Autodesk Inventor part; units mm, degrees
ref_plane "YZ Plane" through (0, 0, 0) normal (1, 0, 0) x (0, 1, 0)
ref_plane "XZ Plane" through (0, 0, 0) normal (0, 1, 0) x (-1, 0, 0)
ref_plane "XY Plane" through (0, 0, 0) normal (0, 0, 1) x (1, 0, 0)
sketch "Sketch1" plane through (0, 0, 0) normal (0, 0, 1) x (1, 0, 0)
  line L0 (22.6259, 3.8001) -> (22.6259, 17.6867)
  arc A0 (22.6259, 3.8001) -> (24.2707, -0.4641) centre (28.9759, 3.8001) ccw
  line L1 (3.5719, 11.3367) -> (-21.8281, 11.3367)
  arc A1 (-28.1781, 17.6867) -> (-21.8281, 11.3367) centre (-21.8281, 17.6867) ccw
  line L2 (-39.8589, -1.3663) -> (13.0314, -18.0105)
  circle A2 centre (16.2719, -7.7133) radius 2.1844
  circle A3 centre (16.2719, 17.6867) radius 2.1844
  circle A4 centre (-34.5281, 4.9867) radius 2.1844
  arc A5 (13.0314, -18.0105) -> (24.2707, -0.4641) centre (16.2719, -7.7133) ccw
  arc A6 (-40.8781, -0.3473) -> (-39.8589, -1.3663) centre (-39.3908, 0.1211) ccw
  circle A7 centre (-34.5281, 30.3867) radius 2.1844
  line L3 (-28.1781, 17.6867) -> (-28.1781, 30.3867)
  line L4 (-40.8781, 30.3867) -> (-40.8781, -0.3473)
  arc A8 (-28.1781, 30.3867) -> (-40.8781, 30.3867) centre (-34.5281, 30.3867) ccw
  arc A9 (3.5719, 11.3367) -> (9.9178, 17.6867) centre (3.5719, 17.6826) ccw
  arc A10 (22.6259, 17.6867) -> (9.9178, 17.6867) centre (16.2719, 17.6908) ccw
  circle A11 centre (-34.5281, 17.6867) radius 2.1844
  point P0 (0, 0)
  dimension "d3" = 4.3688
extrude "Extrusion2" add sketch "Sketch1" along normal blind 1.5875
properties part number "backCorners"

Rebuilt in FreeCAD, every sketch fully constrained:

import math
import FreeCAD as App
import Part
import Sketcher

V = App.Vector
Q = App.Units.Quantity

doc = App.newDocument("Part")
body = doc.addObject("PartDesign::Body", "Body")

# Sketch on XY plane
sketch1 = body.newObject("Sketcher::SketchObject", "Sketch")
sketch1.AttachmentSupport = (doc.getObject("XY_Plane"), [""])
sketch1.MapMode = "FlatFace"
sketch1.addGeometry([
    Part.ArcOfCircle(Part.Circle(V(28.9759, 3.8001, 0), V(0, 0, 1), 6.35), math.radians(180), math.radians(222.185195)),  # 0
    Part.LineSegment(V(22.6259, 3.8001, 0), V(22.6259, 17.6867, 0)),  # 1
    Part.ArcOfCircle(Part.Circle(V(16.2719, 17.6908, 0), V(0, 0, 1), 6.354001), math.radians(-0.036971), math.radians(180.03697)),  # 2
    Part.ArcOfCircle(Part.Circle(V(3.5719, 17.6826, 0), V(0, 0, 1), 6.3459), math.radians(-90), math.radians(0.037018)),  # 3
    Part.LineSegment(V(3.5719, 11.3367, 0), V(-21.8281, 11.3367, 0)),  # 4
    Part.ArcOfCircle(Part.Circle(V(-21.8281, 17.6867, 0), V(0, 0, 1), 6.35), math.radians(180), math.radians(270)),  # 5
    Part.LineSegment(V(-28.1781, 17.6867, 0), V(-28.1781, 30.3867, 0)),  # 6
    Part.ArcOfCircle(Part.Circle(V(-34.5281, 30.3867, 0), V(0, 0, 1), 6.35), math.radians(0), math.radians(180)),  # 7
    Part.LineSegment(V(-40.8781, 30.3867, 0), V(-40.8781, -0.3473, 0)),  # 8
    Part.ArcOfCircle(Part.Circle(V(-39.3908, 0.1211, 0), V(0, 0, 1), 1.559314), math.radians(-162.51906), math.radians(-107.469322)),  # 9
    Part.LineSegment(V(-39.8589, -1.3663, 0), V(13.0314, -18.0105, 0)),  # 10
    Part.ArcOfCircle(Part.Circle(V(16.2719, -7.7133, 0), V(0, 0, 1), 10.795053), math.radians(-107.468643), math.radians(42.185574)),  # 11
    Part.Circle(V(-34.5281, 4.9867, 0), V(0, 0, 1), 2.1844),  # 12
    Part.Circle(V(16.2719, -7.7133, 0), V(0, 0, 1), 2.1844),  # 13
    Part.Circle(V(-34.5281, 17.6867, 0), V(0, 0, 1), 2.1844),  # 14
    Part.Circle(V(-34.5281, 30.3867, 0), V(0, 0, 1), 2.1844),  # 15
    Part.Circle(V(16.2719, 17.6867, 0), V(0, 0, 1), 2.1844),  # 16
], False)
sketch1.addConstraint([
    Sketcher.Constraint("Tangent", 0, 1, 1, 1),
    Sketcher.Constraint("Coincident", 1, 2, 2, 1),
    Sketcher.Constraint("Tangent", 2, 2, 3, 2),
    Sketcher.Constraint("Tangent", 3, 1, 4, 1),
    Sketcher.Constraint("Tangent", 4, 2, 5, 2),
    Sketcher.Constraint("Tangent", 5, 1, 6, 1),
    Sketcher.Constraint("Tangent", 6, 2, 7, 1),
    Sketcher.Constraint("Tangent", 7, 2, 8, 1),
    Sketcher.Constraint("Coincident", 8, 2, 9, 1),
    Sketcher.Constraint("Tangent", 9, 2, 10, 1),
    Sketcher.Constraint("Tangent", 10, 2, 11, 1),
    Sketcher.Constraint("Tangent", 11, 2, 0, 2),
    Sketcher.Constraint("Vertical", 1),
    Sketcher.Constraint("Horizontal", 4),
    Sketcher.Constraint("Vertical", 6),
    Sketcher.Constraint("Vertical", 8),
    Sketcher.Constraint("Coincident", 13, 3, 11, 3),
    Sketcher.Constraint("Coincident", 15, 3, 7, 3),
    Sketcher.Constraint("Equal", 0, 5),
    Sketcher.Constraint("Equal", 5, 7),
    Sketcher.Constraint("Equal", 12, 13),
    Sketcher.Constraint("Equal", 13, 14),
    Sketcher.Constraint("Equal", 14, 15),
    Sketcher.Constraint("Equal", 15, 16),
    Sketcher.Constraint("Horizontal", 5, 3, 14, 3),
    Sketcher.Constraint("Horizontal", 14, 3, 16, 3),
    Sketcher.Constraint("Horizontal", 16, 3, 1, 2),
    Sketcher.Constraint("Horizontal", 1, 2, 2, 2),
    Sketcher.Constraint("Vertical", 2, 3, 11, 3),
    Sketcher.Constraint("Vertical", 7, 3, 12, 3),
    Sketcher.Constraint("Vertical", 12, 3, 14, 3),
    Sketcher.Constraint("Vertical", 13, 3, 16, 3),
    Sketcher.Constraint("Diameter", 12, Q("0.172 in")),
    Sketcher.Constraint("DistanceX", 4, 2, 4, 1, Q("1 in")),
    Sketcher.Constraint("Radius", 0, Q("0.25 in")),
    Sketcher.Constraint("DistanceY", 6, 1, 6, 2, Q("0.5 in")),
    Sketcher.Constraint("Radius", 11, Q("0.425 in")),
    Sketcher.Constraint("DistanceX", 7, 3, 2, 3, Q("2 in")),
    Sketcher.Constraint("DistanceY", 11, 3, 5, 3, Q("1 in")),
    Sketcher.Constraint("DistanceY", 12, 3, 7, 3, Q("1 in")),
    Sketcher.Constraint("DistanceY", 8, 2, 8, 1, Q("1.21 in")),
    Sketcher.Constraint("Radius", 9, Q("0.0614 in")),
    Sketcher.Constraint("Radius", 2, Q("6.354 mm")),
    Sketcher.Constraint("DistanceX", -1, 1, 2, 3, Q("0.6406299 in")),
    Sketcher.Constraint("DistanceY", -1, 1, 0, 3, Q("0.1496 in")),
    Sketcher.Constraint("DistanceY", 9, 2, -1, 1, Q("0.0538 in")),
])
pad1 = body.newObject("PartDesign::Pad", "Pad")
pad1.Profile = sketch1
pad1.Length = Q("0.0625 in")

doc.recompute()
